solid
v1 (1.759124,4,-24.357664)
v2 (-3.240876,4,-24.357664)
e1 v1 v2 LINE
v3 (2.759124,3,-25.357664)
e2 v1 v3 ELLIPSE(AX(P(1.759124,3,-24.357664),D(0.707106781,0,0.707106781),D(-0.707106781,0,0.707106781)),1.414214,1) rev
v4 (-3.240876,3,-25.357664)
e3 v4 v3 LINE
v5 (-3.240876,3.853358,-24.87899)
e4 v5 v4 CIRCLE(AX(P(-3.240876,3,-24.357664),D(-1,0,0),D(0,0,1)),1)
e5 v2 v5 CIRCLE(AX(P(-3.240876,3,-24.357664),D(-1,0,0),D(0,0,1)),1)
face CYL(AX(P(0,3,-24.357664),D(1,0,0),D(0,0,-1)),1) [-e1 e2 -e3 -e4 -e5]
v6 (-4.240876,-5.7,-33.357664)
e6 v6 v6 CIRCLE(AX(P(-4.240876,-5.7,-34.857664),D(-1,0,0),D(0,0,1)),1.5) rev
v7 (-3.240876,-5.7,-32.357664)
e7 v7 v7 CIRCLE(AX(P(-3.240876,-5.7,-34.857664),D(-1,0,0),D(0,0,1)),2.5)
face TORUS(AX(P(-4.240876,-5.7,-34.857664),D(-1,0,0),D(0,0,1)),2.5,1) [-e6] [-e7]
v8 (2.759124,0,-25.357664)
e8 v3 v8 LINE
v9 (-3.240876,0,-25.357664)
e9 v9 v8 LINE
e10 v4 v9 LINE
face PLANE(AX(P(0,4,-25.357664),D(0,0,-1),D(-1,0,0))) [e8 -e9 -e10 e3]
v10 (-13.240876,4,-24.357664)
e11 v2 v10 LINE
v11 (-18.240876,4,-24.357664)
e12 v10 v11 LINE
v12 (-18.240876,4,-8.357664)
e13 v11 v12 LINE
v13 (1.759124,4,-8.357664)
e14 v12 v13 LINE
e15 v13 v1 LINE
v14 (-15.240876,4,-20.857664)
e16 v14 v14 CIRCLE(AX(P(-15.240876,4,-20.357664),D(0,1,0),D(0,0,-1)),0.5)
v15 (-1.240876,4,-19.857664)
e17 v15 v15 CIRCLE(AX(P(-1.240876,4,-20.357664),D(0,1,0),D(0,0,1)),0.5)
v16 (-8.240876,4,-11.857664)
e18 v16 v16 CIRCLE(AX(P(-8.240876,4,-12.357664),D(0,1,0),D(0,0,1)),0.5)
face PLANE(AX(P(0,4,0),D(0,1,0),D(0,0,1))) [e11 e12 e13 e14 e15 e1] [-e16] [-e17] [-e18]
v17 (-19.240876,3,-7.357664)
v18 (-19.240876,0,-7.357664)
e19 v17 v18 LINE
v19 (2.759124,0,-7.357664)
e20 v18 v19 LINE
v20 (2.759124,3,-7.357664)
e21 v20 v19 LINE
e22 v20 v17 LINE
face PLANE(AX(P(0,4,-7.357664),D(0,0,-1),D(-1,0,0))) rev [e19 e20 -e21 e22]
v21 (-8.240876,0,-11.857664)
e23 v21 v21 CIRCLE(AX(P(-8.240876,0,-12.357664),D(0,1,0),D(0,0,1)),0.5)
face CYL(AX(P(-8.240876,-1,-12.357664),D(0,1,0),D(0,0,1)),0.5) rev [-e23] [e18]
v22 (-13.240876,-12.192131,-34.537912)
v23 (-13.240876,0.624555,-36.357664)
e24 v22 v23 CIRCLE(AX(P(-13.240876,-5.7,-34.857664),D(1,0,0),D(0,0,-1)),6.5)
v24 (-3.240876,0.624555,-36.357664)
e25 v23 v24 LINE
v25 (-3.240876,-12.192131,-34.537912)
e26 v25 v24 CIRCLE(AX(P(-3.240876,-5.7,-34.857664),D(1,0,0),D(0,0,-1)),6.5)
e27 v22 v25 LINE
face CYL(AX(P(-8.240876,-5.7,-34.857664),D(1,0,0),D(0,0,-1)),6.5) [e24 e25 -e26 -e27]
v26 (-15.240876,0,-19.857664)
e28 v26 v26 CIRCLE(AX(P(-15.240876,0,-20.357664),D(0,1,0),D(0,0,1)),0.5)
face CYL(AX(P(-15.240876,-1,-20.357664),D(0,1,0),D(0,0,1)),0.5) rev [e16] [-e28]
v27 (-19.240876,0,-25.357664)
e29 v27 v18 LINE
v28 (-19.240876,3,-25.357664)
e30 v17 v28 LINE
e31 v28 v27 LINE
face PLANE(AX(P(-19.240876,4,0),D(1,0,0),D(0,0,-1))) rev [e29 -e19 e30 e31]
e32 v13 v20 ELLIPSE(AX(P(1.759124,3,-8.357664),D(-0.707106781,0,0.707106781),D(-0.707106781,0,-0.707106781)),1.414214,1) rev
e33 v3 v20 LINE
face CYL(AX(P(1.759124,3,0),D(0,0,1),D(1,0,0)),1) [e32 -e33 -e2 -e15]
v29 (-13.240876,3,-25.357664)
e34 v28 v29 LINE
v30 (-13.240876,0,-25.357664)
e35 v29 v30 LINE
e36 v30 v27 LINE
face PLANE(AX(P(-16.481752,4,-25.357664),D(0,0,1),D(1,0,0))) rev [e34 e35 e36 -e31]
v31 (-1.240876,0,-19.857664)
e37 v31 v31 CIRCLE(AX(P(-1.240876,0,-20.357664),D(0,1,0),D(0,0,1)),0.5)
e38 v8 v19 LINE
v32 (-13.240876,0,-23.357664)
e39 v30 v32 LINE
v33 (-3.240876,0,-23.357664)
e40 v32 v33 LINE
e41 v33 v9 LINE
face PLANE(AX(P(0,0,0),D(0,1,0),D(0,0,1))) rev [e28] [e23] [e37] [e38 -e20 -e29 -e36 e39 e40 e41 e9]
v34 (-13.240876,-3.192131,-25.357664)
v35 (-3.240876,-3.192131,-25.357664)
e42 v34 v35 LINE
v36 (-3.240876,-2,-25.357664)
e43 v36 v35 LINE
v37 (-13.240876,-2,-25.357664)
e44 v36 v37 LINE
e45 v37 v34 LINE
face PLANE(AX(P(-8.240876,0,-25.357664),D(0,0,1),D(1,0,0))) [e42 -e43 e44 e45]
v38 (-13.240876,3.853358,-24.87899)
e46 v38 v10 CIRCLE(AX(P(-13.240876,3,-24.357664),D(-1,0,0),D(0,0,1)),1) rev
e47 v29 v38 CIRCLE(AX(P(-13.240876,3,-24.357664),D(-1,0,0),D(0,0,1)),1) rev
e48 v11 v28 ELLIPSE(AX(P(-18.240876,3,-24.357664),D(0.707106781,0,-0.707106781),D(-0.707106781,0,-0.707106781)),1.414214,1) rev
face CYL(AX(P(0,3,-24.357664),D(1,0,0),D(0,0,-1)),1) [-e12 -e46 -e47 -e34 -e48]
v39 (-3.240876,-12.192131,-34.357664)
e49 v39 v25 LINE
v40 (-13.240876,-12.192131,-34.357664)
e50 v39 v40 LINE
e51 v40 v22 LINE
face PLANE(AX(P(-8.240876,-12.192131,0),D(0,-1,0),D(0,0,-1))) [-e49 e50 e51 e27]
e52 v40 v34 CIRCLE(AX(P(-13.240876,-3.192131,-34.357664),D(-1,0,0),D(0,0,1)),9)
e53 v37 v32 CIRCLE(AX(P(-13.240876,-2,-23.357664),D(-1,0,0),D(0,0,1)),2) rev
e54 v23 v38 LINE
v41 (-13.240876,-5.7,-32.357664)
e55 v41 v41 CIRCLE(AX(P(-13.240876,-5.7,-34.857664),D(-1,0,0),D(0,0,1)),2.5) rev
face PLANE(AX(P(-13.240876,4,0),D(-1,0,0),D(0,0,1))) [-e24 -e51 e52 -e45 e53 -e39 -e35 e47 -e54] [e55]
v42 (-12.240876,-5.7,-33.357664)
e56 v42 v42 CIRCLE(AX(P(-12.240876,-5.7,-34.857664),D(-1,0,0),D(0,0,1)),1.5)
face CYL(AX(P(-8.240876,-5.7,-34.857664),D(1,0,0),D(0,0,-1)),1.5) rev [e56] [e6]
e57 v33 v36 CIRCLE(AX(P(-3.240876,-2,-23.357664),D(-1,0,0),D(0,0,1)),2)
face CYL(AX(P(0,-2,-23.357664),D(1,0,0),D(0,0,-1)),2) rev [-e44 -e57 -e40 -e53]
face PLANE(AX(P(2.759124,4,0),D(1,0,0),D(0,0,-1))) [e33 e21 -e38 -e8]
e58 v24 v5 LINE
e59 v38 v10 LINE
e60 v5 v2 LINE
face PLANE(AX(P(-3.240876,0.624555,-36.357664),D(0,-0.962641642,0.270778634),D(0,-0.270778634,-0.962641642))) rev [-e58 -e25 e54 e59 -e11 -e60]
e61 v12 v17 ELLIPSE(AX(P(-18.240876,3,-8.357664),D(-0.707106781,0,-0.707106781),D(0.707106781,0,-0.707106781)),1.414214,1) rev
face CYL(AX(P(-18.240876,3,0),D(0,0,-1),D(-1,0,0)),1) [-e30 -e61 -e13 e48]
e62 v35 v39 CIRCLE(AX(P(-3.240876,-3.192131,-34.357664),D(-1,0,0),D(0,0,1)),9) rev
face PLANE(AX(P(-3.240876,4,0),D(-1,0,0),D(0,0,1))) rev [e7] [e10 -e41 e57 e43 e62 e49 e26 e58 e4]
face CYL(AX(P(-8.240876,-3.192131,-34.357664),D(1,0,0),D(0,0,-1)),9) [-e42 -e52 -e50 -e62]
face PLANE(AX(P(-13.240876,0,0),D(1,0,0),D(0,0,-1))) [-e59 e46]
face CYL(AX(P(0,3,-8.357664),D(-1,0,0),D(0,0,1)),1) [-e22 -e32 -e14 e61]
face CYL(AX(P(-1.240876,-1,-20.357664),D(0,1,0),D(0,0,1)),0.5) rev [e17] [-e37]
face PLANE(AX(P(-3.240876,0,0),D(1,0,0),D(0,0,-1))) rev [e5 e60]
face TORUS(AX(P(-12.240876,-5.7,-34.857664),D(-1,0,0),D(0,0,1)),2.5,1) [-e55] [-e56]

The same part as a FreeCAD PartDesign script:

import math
import FreeCAD as App
import Part
import Sketcher
from FreeCAD import Vector


def edges_at(feature, points):
    """Names of the edges that pass closest to the given points."""
    edges = feature.Shape.Edges
    near = lambda p: min(range(len(edges)), key=lambda i: edges[i].distToShape(Part.Vertex(*p))[0])
    return sorted({f"Edge{near(p) + 1}" for p in points})

doc = App.newDocument("Part")
body = doc.addObject("PartDesign::Body", "Body")

# Sketch on XZ plane
sketch1 = body.newObject("Sketcher::SketchObject", "Sketch")
sketch1.AttachmentSupport = (doc.getObject("XZ_Plane"), [""])
sketch1.MapMode = "FlatFace"
sketch1.addGeometry(Part.LineSegment(Vector(-8.240876, -7.357664, 0), Vector(2.759124, -7.357664, 0)), False)
sketch1.addGeometry(Part.LineSegment(Vector(2.759124, -7.357664, 0), Vector(2.759124, -25.357664, 0)), False)
sketch1.addGeometry(Part.LineSegment(Vector(2.759124, -25.357664, 0), Vector(-3.240876, -25.357664, 0)), False)
sketch1.addGeometry(Part.LineSegment(Vector(-3.240876, -25.357664, 0), Vector(-3.240876, -36.357664, 0)), False)
sketch1.addGeometry(Part.LineSegment(Vector(-3.240876, -36.357664, 0), Vector(-8.240876, -36.357664, 0)), False)
sketch1.addGeometry(Part.LineSegment(Vector(-8.240876, -36.357664, 0), Vector(-8.240876, -7.357664, 0)), False)
sketch1.addConstraint(Sketcher.Constraint("Coincident", 0, 2, 1, 1))
sketch1.addConstraint(Sketcher.Constraint("Coincident", 1, 2, 2, 1))
sketch1.addConstraint(Sketcher.Constraint("Coincident", 2, 2, 3, 1))
sketch1.addConstraint(Sketcher.Constraint("Coincident", 3, 2, 4, 1))
sketch1.addConstraint(Sketcher.Constraint("Coincident", 4, 2, 5, 1))
sketch1.addConstraint(Sketcher.Constraint("Coincident", 5, 2, 0, 1))
sketch1.addConstraint(Sketcher.Constraint("Horizontal", 0))
sketch1.addConstraint(Sketcher.Constraint("Vertical", 1))
sketch1.addConstraint(Sketcher.Constraint("Horizontal", 2))
sketch1.addConstraint(Sketcher.Constraint("Vertical", 3))
sketch1.addConstraint(Sketcher.Constraint("Horizontal", 4))
sketch1.addConstraint(Sketcher.Constraint("Vertical", 5))
sketch1.addConstraint(Sketcher.Constraint("Equal", 0, 3))
sketch1.addConstraint(Sketcher.Constraint("DistanceX", 0, 1, 0, 2, 11.0))
sketch1.addConstraint(Sketcher.Constraint("DistanceX", 2, 2, 2, 1, 6.0))
sketch1.addConstraint(Sketcher.Constraint("DistanceY", 1, 2, 1, 1, 18.0))
sketch1.addConstraint(Sketcher.Constraint("DistanceX", -1, 1, 0, 2, 2.759124))
sketch1.addConstraint(Sketcher.Constraint("DistanceY", 0, 2, -1, 1, 7.357664))
pad1 = body.newObject("PartDesign::Pad", "Pad")
pad1.Profile = sketch1
pad1.Length = 4
pad1.Reversed = True

# Sketch on YZ plane
sketch2 = body.newObject("Sketcher::SketchObject", "Sketch001")
sketch2.AttachmentSupport = (doc.getObject("YZ_Plane"), [""])
sketch2.MapMode = "FlatFace"
sketch2.AttachmentOffset = App.Placement(Vector(0, 0, -3.240876), App.Rotation())
sketch2.addGeometry(Part.LineSegment(Vector(0, -25.357664, 0), Vector(-12.192131, -25.357664, 0)), False)
sketch2.addGeometry(Part.LineSegment(Vector(-12.192131, -25.357664, 0), Vector(-12.192131, -34.537912, 0)), False)
sketch2.addGeometry(Part.ArcOfCircle(Part.Circle(Vector(-5.7, -34.857664, 0), Vector(0, 0, 1), 6.5), math.radians(177.18033), math.radians(346.657636)), False)
sketch2.addGeometry(Part.LineSegment(Vector(0.624555, -36.357664, 0), Vector(0, -36.357664, 0)), False)
sketch2.addGeometry(Part.LineSegment(Vector(0, -36.357664, 0), Vector(0, -25.357664, 0)), False)
sketch2.addGeometry(Part.ArcOfCircle(Part.Circle(Vector(-5.7, -34.857664, 0), Vector(0, 0, 1), 1.5), math.radians(12.308083), math.radians(167.691917)), False)
sketch2.addGeometry(Part.ArcOfCircle(Part.Circle(Vector(-5.7, -34.857664, 0), Vector(0, 0, 1), 1.5), math.radians(-90), math.radians(12.308083)), False)
sketch2.addGeometry(Part.ArcOfCircle(Part.Circle(Vector(-5.7, -34.857664, 0), Vector(0, 0, 1), 1.5), math.radians(167.691917), math.radians(270)), False)
sketch2.addConstraint(Sketcher.Constraint("Coincident", 0, 2, 1, 1))
sketch2.addConstraint(Sketcher.Constraint("Coincident", 1, 2, 2, 1))
sketch2.addConstraint(Sketcher.Constraint("Coincident", 2, 2, 3, 1))
sketch2.addConstraint(Sketcher.Constraint("Coincident", 3, 2, 4, 1))
sketch2.addConstraint(Sketcher.Constraint("Coincident", 4, 2, 0, 1))
sketch2.addConstraint(Sketcher.Constraint("Tangent", 5, 1, 6, 2))
sketch2.addConstraint(Sketcher.Constraint("Tangent", 6, 1, 7, 2))
sketch2.addConstraint(Sketcher.Constraint("Tangent", 7, 1, 5, 2))
sketch2.addConstraint(Sketcher.Constraint("Horizontal", 0))
sketch2.addConstraint(Sketcher.Constraint("Vertical", 1))
sketch2.addConstraint(Sketcher.Constraint("Horizontal", 3))
sketch2.addConstraint(Sketcher.Constraint("Vertical", 4))
sketch2.addConstraint(Sketcher.Constraint("Coincident", 5, 3, 2, 3))
sketch2.addConstraint(Sketcher.Constraint("PointOnObject", 3, 2, -2))
sketch2.addConstraint(Sketcher.Constraint("Horizontal", 1, 2, 5, 1))
sketch2.addConstraint(Sketcher.Constraint("Horizontal", 3, 2, 6, 1))
sketch2.addConstraint(Sketcher.Constraint("Horizontal", 5, 1, 7, 1))
sketch2.addConstraint(Sketcher.Constraint("Vertical", 7, 3, 6, 1))
sketch2.addConstraint(Sketcher.Constraint("Radius", 2, 6.5))
sketch2.addConstraint(Sketcher.Constraint("Radius", 5, 1.5))
sketch2.addConstraint(Sketcher.Constraint("DistanceY", 4, 1, 4, 2, 11.0))
sketch2.addConstraint(Sketcher.Constraint("DistanceX", 2, 3, -1, 1, 5.7))
sketch2.addConstraint(Sketcher.Constraint("DistanceX", 0, 2, 0, 1, 12.192131))
sketch2.addConstraint(Sketcher.Constraint("DistanceY", 1, 2, -1, 1, 34.537912))
pad2 = body.newObject("PartDesign::Pad", "Pad001")
pad2.Profile = sketch2
pad2.Length = 5
pad2.Reversed = True
doc.recompute()

datumplane = body.newObject("PartDesign::Plane", "DatumPlane")
datumplane.AttachmentSupport = (doc.getObject("YZ_Plane"), [""])
datumplane.MapMode = "FlatFace"
datumplane.AttachmentOffset = App.Placement(Vector(0, 0, -8.240876), App.Rotation())
mirrored = body.newObject("PartDesign::Mirrored", "Mirrored")
mirrored.Originals = [pad1, pad2]
mirrored.MirrorPlane = (datumplane, [""])
body.Tip = mirrored

# Sketch on XZ plane
sketch3 = body.newObject("Sketcher::SketchObject", "Sketch002")
sketch3.AttachmentSupport = (doc.getObject("XZ_Plane"), [""])
sketch3.MapMode = "FlatFace"
sketch3.AttachmentOffset = App.Placement(Vector(0, 0, -4), App.Rotation())
sketch3.addGeometry(Part.Circle(Vector(-1.240876, -20.357664, 0), Vector(0, 0, 1), 0.5), False)
sketch3.addGeometry(Part.Circle(Vector(-8.240876, -12.357664, 0), Vector(0, 0, 1), 0.5), False)
sketch3.addGeometry(Part.Circle(Vector(-15.240876, -20.357664, 0), Vector(0, 0, 1), 0.5), False)
sketch3.addConstraint(Sketcher.Constraint("Equal", 0, 1))
sketch3.addConstraint(Sketcher.Constraint("Equal", 1, 2))
sketch3.addConstraint(Sketcher.Constraint("Horizontal", 0, 3, 2, 3))
sketch3.addConstraint(Sketcher.Constraint("Diameter", 0, 1.0))
sketch3.addConstraint(Sketcher.Constraint("DistanceX", 1, 3, 0, 3, 7.0))
sketch3.addConstraint(Sketcher.Constraint("DistanceY", 0, 3, 1, 3, 8.0))
sketch3.addConstraint(Sketcher.Constraint("DistanceX", 2, 3, 1, 3, 7.0))
sketch3.addConstraint(Sketcher.Constraint("DistanceX", 0, 3, -1, 1, 1.240876))
sketch3.addConstraint(Sketcher.Constraint("DistanceY", 0, 3, -1, 1, 20.357664))
pocket1 = body.newObject("PartDesign::Pocket", "Pocket")
pocket1.Profile = sketch3
pocket1.Length = 5
pocket1.Reversed = True
doc.recompute()

fillet = body.newObject("PartDesign::Fillet", "Fillet")
fillet.Base = (pocket1, edges_at(pocket1, [
    (-0.241, 4, -25.358),
    (-3.241, -4.532, -35.799),
    (-8.241, 4, -7.358),
    (-19.241, 4, -16.358),
    (-16.241, 4, -25.358),
    (2.759, 4, -16.358),
    (-13.241, -4.532, -35.799),
]))
fillet.Radius = 1
doc.recompute()

fillet2 = body.newObject("PartDesign::Fillet", "Fillet001")
fillet2.Base = (fillet, edges_at(fillet, [(-8.241, 0, -25.358)]))
fillet2.Radius = 2
doc.recompute()

fillet3 = body.newObject("PartDesign::Fillet", "Fillet002")
fillet3.Base = (fillet2, edges_at(fillet2, [(-8.241, -12.192, -25.358)]))
fillet3.Radius = 9

# Sketch on YZ plane
sketch4 = body.newObject("Sketcher::SketchObject", "Sketch003")
sketch4.AttachmentSupport = (doc.getObject("YZ_Plane"), [""])
sketch4.MapMode = "FlatFace"
sketch4.AttachmentOffset = App.Placement(Vector(0, 0, -13.240876), App.Rotation())
sketch4.addGeometry(Part.LineSegment(Vector(0.624555, -36.357664, 0), Vector(4, -24.357664, 0)), False)
sketch4.addGeometry(Part.LineSegment(Vector(4, -24.357664, 0), Vector(4, -36.357664, 0)), False)
sketch4.addGeometry(Part.LineSegment(Vector(4, -36.357664, 0), Vector(0.624555, -36.357664, 0)), False)
sketch4.addConstraint(Sketcher.Constraint("Coincident", 0, 2, 1, 1))
sketch4.addConstraint(Sketcher.Constraint("Coincident", 1, 2, 2, 1))
sketch4.addConstraint(Sketcher.Constraint("Coincident", 2, 2, 0, 1))
sketch4.addConstraint(Sketcher.Constraint("Vertical", 1))
sketch4.addConstraint(Sketcher.Constraint("Horizontal", 2))
sketch4.addConstraint(Sketcher.Constraint("DistanceY", 1, 2, 1, 1, 12.0))
sketch4.addConstraint(Sketcher.Constraint("DistanceX", -1, 1, 0, 2, 4.0))
sketch4.addConstraint(Sketcher.Constraint("Distance", 0, 12.465698))
sketch4.addConstraint(Sketcher.Constraint("DistanceY", 0, 2, -1, 1, 24.357664))
pocket2 = body.newObject("PartDesign::Pocket", "Pocket001")
pocket2.Profile = sketch4
pocket2.Length = 10
pocket2.Reversed = True

doc.recompute()
